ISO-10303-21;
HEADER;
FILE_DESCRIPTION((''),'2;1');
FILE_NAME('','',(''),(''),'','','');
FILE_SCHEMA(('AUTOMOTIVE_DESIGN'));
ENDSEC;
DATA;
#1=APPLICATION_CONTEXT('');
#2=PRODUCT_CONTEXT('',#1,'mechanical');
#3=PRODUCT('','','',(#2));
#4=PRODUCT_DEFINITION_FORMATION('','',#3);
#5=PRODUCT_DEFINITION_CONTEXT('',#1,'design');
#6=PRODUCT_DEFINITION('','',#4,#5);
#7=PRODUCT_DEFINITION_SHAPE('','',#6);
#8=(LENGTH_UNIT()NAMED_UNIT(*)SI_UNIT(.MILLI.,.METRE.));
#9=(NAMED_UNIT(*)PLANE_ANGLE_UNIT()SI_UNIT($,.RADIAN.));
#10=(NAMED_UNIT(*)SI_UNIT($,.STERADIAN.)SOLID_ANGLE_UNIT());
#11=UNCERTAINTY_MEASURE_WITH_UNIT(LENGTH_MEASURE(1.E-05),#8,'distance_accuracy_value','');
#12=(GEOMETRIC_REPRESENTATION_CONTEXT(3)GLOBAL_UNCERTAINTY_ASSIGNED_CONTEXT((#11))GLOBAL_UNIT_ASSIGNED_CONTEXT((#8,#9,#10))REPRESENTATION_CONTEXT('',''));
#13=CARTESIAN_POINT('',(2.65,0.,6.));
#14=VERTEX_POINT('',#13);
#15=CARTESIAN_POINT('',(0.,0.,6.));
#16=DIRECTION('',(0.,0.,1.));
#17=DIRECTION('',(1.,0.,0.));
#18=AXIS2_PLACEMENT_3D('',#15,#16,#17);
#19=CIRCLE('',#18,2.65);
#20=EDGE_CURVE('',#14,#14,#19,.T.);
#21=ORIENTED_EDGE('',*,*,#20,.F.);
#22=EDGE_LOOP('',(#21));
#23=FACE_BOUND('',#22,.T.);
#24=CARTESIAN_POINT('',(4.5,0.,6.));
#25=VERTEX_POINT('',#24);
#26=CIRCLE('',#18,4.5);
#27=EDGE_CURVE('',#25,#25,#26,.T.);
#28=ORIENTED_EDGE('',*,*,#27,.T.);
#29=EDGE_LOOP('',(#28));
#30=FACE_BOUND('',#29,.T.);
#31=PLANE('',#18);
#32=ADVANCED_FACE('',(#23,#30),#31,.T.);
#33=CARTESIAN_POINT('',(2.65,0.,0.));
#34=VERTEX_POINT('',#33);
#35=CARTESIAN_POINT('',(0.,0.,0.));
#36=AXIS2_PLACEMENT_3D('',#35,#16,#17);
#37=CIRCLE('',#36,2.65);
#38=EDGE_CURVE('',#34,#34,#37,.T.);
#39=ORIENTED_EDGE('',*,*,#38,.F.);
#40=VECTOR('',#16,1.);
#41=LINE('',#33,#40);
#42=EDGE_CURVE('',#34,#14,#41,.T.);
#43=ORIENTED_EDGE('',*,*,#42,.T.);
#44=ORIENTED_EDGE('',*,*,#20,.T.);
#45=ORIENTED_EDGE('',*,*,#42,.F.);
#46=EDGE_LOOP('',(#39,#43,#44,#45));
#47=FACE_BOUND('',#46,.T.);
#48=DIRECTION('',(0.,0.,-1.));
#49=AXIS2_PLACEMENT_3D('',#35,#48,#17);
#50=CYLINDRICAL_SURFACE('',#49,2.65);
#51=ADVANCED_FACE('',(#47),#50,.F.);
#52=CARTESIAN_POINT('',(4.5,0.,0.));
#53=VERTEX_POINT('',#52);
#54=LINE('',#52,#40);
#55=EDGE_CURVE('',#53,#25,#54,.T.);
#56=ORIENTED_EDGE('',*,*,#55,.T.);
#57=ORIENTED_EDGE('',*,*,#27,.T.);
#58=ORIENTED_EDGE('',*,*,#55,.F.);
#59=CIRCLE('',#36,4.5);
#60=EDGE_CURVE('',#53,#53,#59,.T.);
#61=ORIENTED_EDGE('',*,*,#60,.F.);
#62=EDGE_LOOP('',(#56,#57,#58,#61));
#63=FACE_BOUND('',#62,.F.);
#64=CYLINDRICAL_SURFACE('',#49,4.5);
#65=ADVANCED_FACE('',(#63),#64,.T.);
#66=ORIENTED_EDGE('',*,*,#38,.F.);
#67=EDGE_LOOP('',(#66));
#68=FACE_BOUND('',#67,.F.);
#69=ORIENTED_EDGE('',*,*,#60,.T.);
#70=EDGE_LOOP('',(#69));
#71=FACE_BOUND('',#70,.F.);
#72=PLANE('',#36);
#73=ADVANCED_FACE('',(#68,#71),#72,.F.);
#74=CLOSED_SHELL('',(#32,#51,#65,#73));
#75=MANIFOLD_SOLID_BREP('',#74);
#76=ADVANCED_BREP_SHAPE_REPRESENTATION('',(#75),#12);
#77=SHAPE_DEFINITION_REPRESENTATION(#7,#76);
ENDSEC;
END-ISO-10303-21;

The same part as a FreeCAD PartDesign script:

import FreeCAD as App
import Part
import Sketcher

doc = App.newDocument("Part")
params = doc.addObject("Spreadsheet::Sheet", "Params")
for row, (alias, value) in enumerate([
    ("sketch1_diameter", "9 mm"),
    ("sketch1_diameter2", "5.3 mm"),
    ("pad1_length", "6 mm"),
], start=1):
    params.set(f"A{row}", alias)
    params.set(f"B{row}", "=" + value)
    params.setAlias(f"B{row}", alias)

body = doc.addObject("PartDesign::Body", "Body")

sketch1 = doc.addObject("Sketcher::SketchObject", "Sketch")
body.addObject(sketch1)
sketch1.AttachmentSupport = (doc.XY_Plane, [""])
sketch1.MapMode = "FlatFace"
sketch1.addGeometry([
    Part.Circle(App.Vector(0, 0, 0), App.Vector(0, 0, 1), 4.5),
    Part.Circle(App.Vector(0, 0, 0), App.Vector(0, 0, 1), 2.6),
], False)
sketch1.addConstraint([
    Sketcher.Constraint("Coincident", 0, 3, -1, 1),
    Sketcher.Constraint("Coincident", 1, 3, -1, 1),
    Sketcher.Constraint("Diameter", 0, 9.0),
    Sketcher.Constraint("Diameter", 1, 5.3),
])
sketch1.setExpression("Constraints[2]", "Params.sketch1_diameter")
sketch1.setExpression("Constraints[3]", "Params.sketch1_diameter2")
pad1 = doc.addObject("PartDesign::Pad", "Pad")
body.addObject(pad1)
pad1.Profile = sketch1
pad1.setExpression("Length", "Params.pad1_length")

doc.recompute()
